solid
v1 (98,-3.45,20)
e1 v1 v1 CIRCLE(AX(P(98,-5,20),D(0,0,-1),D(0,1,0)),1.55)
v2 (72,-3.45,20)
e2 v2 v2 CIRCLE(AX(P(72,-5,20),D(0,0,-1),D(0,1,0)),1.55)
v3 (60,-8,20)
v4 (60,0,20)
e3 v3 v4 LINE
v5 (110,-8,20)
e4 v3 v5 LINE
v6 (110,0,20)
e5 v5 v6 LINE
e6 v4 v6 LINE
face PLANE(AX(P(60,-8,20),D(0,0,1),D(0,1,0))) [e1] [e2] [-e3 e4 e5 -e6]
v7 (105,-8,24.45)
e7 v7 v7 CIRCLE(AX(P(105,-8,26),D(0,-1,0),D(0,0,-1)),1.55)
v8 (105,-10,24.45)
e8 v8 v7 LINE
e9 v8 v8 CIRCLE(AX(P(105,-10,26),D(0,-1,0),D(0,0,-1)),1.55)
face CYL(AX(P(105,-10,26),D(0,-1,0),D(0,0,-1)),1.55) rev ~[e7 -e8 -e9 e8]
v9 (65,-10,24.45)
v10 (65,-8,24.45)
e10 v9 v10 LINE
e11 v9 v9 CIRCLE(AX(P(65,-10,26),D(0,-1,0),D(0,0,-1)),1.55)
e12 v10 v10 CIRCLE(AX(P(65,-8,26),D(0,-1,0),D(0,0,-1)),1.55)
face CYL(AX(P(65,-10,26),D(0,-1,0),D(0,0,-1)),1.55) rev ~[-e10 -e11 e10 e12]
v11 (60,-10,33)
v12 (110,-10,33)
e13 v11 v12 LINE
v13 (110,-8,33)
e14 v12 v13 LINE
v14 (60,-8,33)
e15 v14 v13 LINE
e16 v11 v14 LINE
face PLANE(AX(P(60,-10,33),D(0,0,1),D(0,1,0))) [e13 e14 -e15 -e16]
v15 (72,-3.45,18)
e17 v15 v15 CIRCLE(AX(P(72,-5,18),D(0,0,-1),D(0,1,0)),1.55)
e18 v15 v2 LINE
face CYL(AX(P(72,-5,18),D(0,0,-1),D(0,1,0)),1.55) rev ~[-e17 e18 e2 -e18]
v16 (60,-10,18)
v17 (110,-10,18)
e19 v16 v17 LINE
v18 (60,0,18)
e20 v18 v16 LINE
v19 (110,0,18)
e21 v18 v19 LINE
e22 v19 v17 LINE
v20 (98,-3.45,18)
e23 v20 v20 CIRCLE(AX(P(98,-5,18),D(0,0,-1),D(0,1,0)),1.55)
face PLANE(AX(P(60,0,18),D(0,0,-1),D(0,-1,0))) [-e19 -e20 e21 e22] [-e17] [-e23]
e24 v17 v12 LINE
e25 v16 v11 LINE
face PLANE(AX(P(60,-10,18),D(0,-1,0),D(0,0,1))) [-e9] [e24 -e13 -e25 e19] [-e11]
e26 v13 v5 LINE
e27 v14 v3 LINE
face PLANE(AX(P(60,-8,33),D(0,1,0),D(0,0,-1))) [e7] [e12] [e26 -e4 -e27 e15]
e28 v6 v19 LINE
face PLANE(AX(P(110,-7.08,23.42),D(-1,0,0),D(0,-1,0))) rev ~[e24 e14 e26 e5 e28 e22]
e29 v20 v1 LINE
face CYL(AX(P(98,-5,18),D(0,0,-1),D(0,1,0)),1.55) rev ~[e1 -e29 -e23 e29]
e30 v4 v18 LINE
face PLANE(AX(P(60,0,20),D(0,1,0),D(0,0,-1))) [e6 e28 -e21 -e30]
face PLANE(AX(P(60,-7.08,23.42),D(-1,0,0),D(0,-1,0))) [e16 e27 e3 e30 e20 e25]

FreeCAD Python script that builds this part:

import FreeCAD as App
import Part
import Sketcher
Q = App.Units.Quantity


def add_polygon(sketch, points):
    """Adds a closed chain of lines whose ends are joined by coincident constraints."""
    first, n = sketch.GeometryCount, len(points)
    for a, b in zip(points, points[1:] + points[:1]):
        sketch.addGeometry(Part.LineSegment(App.Vector(*a, 0), App.Vector(*b, 0)), False)
    for i in range(n):
        sketch.addConstraint(Sketcher.Constraint("Coincident", first + i, 2, first + (i + 1) % n, 1))

doc = App.newDocument("Part")
body = doc.addObject("PartDesign::Body", "Body")

# Sketch on YZ plane
sketch1 = doc.addObject("Sketcher::SketchObject", "Sketch")
body.addObject(sketch1)
sketch1.AttachmentSupport = (doc.YZ_Plane, [""])
sketch1.MapMode = "FlatFace"
add_polygon(sketch1, [(0, 15), (0, 0), (10, 0), (10, 2), (2, 2), (2, 15)])  # lines 0-5
sketch1.addConstraint([
    Sketcher.Constraint("Vertical", 0),
    Sketcher.Constraint("Horizontal", 1),
    Sketcher.Constraint("Vertical", 2),
    Sketcher.Constraint("Horizontal", 3),
    Sketcher.Constraint("Vertical", 4),
    Sketcher.Constraint("Horizontal", 5),
    Sketcher.Constraint("Coincident", 0, 2, -1, 1),
    Sketcher.Constraint("Equal", 5, 2),
    Sketcher.Constraint("DistanceX", 1, 1, 1, 2, Q("10 mm")),
    Sketcher.Constraint("DistanceX", 3, 2, 3, 1, Q("8 mm")),
    Sketcher.Constraint("DistanceY", 0, 2, 0, 1, Q("15 mm")),
])
pad1 = doc.addObject("PartDesign::Pad", "Pad")
body.addObject(pad1)
pad1.Profile = sketch1
pad1.Length = 50

# Sketch on XY plane
sketch2 = doc.addObject("Sketcher::SketchObject", "Sketch001")
body.addObject(sketch2)
sketch2.AttachmentSupport = (doc.XY_Plane, [""])
sketch2.MapMode = "FlatFace"
sketch2.addGeometry([
    Part.Circle(App.Vector(38, 5, 0), App.Vector(0, 0, 1), 1.6),
    Part.Circle(App.Vector(12, 5, 0), App.Vector(0, 0, 1), 1.6),
], False)
sketch2.addConstraint([
    Sketcher.Constraint("Equal", 0, 1),
    Sketcher.Constraint("Horizontal", 0, 3, 1, 3),
    Sketcher.Constraint("Diameter", 0, Q("3.1 mm")),
    Sketcher.Constraint("DistanceX", -1, 1, 0, 3, Q("38 mm")),
    Sketcher.Constraint("DistanceY", -1, 1, 0, 3, Q("5 mm")),
    Sketcher.Constraint("DistanceX", -1, 1, 1, 3, Q("12 mm")),
])
pocket1 = doc.addObject("PartDesign::Pocket", "Pocket")
body.addObject(pocket1)
pocket1.Profile = sketch2
pocket1.Type = "ThroughAll"
pocket1.Reversed = True

# Sketch on XZ plane
sketch3 = doc.addObject("Sketcher::SketchObject", "Sketch002")
body.addObject(sketch3)
sketch3.AttachmentSupport = (doc.XZ_Plane, [""])
sketch3.MapMode = "FlatFace"
sketch3.addGeometry([
    Part.Circle(App.Vector(45, 8, 0), App.Vector(0, 0, 1), 1.6),
    Part.Circle(App.Vector(5, 8, 0), App.Vector(0, 0, 1), 1.6),
], False)
sketch3.addConstraint([
    Sketcher.Constraint("Equal", 0, 1),
    Sketcher.Constraint("Horizontal", 0, 3, 1, 3),
    Sketcher.Constraint("Diameter", 0, Q("3.1 mm")),
    Sketcher.Constraint("DistanceX", -1, 1, 0, 3, Q("45 mm")),
    Sketcher.Constraint("DistanceY", -1, 1, 0, 3, Q("8 mm")),
    Sketcher.Constraint("DistanceX", -1, 1, 1, 3, Q("5 mm")),
])
pocket2 = doc.addObject("PartDesign::Pocket", "Pocket001")
body.addObject(pocket2)
pocket2.Profile = sketch3
pocket2.Type = "ThroughAll"
body2 = doc.addObject("PartDesign::Body", "Body001")
doc.recompute()

body.Placement = App.Placement(App.Vector(60, -10, 18), App.Rotation(App.Vector(0, 0, 1), 0))
boolean = doc.addObject("PartDesign::Boolean", "Boolean")
body2.addObject(boolean)
boolean.Type = "Fuse"
boolean.addObjects([body])

doc.recompute()
